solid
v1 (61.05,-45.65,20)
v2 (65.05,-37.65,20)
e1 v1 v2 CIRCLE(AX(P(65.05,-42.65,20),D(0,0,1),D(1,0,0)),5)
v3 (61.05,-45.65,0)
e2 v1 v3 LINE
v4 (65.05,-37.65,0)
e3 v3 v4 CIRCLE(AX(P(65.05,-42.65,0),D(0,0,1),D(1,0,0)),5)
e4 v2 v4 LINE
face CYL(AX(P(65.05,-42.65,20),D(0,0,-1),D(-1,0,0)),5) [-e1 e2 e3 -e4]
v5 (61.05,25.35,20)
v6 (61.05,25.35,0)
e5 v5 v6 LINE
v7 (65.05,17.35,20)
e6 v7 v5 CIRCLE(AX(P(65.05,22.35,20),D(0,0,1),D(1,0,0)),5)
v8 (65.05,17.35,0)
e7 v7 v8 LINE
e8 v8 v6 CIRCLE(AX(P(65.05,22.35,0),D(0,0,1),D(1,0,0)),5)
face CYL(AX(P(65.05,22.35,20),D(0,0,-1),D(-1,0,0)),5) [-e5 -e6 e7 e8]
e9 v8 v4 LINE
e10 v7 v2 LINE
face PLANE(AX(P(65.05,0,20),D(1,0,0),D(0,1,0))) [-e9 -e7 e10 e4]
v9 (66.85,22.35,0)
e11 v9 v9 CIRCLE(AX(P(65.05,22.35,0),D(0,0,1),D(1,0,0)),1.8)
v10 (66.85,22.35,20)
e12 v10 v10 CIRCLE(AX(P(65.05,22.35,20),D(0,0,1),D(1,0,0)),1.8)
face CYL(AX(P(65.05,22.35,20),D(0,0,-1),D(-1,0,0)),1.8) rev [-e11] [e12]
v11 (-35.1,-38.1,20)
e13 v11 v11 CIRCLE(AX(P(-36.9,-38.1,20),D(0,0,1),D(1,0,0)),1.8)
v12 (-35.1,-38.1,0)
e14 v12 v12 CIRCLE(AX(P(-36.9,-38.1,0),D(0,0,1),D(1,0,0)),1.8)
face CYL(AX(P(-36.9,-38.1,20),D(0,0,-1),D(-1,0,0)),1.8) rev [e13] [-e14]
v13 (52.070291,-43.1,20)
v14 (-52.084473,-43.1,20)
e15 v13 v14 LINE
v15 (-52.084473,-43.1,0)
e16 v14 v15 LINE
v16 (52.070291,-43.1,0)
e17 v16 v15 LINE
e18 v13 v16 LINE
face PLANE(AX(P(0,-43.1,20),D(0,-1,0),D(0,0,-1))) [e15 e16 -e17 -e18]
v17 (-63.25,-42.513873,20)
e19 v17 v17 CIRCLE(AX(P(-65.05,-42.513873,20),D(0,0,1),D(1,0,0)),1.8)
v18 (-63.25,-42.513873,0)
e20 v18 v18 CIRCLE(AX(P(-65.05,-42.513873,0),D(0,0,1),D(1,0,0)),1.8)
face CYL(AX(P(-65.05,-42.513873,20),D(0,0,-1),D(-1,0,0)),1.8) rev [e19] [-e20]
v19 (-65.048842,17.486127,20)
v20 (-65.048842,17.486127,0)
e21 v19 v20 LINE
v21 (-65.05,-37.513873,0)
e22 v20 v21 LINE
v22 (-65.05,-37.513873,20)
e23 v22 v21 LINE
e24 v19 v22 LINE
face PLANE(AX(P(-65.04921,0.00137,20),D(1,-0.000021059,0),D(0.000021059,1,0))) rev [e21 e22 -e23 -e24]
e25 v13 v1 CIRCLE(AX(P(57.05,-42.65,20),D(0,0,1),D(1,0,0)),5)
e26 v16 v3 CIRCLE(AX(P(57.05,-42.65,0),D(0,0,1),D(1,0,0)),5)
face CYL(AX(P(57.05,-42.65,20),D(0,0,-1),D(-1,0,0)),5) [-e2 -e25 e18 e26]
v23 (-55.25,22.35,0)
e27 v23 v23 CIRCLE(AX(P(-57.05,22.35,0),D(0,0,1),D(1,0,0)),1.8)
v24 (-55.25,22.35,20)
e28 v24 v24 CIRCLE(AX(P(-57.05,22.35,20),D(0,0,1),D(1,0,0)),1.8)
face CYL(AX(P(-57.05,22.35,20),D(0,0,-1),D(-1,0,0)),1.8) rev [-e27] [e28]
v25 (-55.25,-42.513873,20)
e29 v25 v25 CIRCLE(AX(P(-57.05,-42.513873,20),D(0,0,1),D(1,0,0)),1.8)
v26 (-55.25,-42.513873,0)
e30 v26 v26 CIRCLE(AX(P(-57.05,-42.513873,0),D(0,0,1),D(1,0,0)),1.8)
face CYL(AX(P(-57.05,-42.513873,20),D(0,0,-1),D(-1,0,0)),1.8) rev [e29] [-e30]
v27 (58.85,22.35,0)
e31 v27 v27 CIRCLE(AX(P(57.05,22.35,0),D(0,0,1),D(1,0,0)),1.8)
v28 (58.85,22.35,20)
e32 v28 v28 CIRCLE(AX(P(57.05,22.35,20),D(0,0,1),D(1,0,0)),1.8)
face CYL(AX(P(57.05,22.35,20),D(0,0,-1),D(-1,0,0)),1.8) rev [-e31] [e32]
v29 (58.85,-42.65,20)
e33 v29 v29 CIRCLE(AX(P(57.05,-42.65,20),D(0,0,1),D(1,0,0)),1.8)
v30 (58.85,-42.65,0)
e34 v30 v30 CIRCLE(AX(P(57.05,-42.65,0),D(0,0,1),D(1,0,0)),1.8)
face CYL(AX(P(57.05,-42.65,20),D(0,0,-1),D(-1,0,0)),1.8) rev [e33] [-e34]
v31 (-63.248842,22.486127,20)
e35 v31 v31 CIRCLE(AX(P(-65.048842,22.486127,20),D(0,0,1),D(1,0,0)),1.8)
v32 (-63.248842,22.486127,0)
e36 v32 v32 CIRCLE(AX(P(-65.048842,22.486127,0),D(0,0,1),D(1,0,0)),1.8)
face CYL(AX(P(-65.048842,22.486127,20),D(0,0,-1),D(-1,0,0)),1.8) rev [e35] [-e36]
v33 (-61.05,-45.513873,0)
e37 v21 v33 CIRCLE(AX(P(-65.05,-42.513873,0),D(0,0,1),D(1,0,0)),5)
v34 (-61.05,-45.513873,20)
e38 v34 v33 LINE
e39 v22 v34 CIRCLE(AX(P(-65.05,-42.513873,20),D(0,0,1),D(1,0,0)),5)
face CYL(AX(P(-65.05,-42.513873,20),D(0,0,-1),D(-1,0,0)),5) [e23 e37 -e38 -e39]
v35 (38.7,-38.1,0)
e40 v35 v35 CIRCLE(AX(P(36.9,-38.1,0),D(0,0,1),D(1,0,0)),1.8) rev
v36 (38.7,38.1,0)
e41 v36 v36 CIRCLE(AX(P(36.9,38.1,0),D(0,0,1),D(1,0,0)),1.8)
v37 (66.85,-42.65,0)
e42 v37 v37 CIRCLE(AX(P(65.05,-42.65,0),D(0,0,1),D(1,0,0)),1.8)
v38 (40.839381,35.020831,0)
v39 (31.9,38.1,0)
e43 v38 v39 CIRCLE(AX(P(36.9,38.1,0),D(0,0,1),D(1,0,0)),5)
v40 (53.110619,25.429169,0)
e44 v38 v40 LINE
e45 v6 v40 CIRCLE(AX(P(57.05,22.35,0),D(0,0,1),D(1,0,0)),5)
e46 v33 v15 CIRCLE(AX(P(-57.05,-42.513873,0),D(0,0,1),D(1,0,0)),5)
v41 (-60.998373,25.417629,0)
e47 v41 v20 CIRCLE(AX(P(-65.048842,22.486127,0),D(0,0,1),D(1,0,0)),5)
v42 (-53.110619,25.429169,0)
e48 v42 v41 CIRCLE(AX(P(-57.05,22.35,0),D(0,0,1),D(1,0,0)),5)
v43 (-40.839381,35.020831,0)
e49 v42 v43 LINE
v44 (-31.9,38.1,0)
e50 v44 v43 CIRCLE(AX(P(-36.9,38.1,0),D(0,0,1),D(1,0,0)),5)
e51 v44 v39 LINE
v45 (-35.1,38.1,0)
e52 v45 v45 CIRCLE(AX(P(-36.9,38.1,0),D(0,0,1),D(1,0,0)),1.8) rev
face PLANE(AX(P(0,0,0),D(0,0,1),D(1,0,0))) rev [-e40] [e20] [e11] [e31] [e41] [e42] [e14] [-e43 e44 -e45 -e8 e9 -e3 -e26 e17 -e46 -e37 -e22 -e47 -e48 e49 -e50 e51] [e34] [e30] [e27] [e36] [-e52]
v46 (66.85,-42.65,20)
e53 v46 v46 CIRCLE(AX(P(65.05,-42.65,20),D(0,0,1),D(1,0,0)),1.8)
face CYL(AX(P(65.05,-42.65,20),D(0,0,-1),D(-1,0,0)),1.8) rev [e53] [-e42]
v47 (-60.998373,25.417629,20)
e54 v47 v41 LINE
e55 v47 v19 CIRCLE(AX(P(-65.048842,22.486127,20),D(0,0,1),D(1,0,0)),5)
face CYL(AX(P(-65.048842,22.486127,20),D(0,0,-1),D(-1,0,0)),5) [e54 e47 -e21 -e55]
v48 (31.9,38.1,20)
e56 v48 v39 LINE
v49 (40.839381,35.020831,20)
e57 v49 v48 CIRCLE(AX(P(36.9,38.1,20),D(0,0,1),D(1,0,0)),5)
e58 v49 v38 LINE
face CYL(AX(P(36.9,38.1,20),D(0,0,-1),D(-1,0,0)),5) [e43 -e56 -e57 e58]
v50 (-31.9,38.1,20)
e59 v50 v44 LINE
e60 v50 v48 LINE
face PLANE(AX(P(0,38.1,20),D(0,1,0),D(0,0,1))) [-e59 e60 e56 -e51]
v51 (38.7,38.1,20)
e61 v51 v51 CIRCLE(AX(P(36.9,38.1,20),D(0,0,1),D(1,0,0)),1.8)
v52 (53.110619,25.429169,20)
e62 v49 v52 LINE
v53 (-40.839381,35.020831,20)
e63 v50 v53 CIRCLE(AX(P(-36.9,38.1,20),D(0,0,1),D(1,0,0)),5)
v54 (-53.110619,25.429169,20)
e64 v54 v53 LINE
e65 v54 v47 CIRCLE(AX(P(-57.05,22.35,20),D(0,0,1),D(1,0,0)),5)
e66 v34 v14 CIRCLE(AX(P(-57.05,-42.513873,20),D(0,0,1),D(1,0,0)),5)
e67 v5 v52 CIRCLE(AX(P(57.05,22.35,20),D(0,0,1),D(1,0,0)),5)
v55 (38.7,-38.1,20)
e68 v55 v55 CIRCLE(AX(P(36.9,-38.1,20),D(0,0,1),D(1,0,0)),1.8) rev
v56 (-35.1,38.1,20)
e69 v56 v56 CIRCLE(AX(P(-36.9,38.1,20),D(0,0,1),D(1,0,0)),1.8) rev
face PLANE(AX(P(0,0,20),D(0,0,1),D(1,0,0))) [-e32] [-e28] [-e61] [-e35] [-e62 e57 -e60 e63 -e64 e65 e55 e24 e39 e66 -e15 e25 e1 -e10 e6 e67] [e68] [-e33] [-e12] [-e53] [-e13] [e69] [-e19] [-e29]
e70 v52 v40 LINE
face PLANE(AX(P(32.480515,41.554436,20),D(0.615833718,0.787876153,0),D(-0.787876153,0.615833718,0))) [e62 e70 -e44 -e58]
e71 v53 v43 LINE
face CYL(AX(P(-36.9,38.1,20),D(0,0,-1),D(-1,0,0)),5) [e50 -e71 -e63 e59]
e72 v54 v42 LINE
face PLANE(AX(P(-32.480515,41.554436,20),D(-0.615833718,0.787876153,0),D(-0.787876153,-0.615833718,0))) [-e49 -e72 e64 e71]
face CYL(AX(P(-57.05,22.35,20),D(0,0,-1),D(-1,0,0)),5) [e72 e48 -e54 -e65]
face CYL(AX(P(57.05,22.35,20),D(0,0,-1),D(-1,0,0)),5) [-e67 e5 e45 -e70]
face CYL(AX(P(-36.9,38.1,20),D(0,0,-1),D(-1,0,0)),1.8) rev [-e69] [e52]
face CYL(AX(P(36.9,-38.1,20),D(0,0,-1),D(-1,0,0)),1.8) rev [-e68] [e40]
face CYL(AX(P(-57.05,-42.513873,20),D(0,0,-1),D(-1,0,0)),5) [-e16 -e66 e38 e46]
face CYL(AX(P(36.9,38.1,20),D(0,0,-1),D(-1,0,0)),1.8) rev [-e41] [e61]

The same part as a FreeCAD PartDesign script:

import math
import FreeCAD as App
import Part
import Sketcher

V = App.Vector
Q = App.Units.Quantity

doc = App.newDocument("Part")
params = doc.addObject("Spreadsheet::Sheet", "Params")
for row, (alias, value) in enumerate([
    ("sketch1_radius", "5 mm"),
    ("sketch1_diameter", "3.6 mm"),
    ("sketch1_height", "55 mm"),
    ("sketch1_length", "55 mm"),
    ("sketch1_width", "63.8 mm"),
    ("pad1_length", "20 mm"),
], start=1):
    params.set(f"A{row}", alias)
    params.set(f"B{row}", "=" + value)
    params.setAlias(f"B{row}", alias)

body = doc.addObject("PartDesign::Body", "Body")

# Sketch on XY plane
sketch1 = body.newObject("Sketcher::SketchObject", "Sketch")
sketch1.AttachmentSupport = (doc.getObject("XY_Plane"), [""])
sketch1.MapMode = "FlatFace"
sketch1.addGeometry([
    Part.ArcOfCircle(Part.Circle(V(-65, 22.5, 0), V(0, 0, 1), 5), math.radians(36), math.radians(270)),  # 0
    Part.LineSegment(V(-65, 17.5, 0), V(-65, -37.5, 0)),  # 1
    Part.ArcOfCircle(Part.Circle(V(-65, -42.5, 0), V(0, 0, 1), 5), math.radians(90), math.radians(323)),  # 2
    Part.ArcOfCircle(Part.Circle(V(-57, -42.5, 0), V(0, 0, 1), 5), math.radians(-143), math.radians(-7)),  # 3
    Part.LineSegment(V(-52.1, -43.1, 0), V(52.1, -43.1, 0)),  # 4
    Part.ArcOfCircle(Part.Circle(V(57, -42.6, 0), V(0, 0, 1), 5), math.radians(-175), math.radians(-37)),  # 5
    Part.ArcOfCircle(Part.Circle(V(65, -42.6, 0), V(0, 0, 1), 5), math.radians(-143), math.radians(90)),  # 6
    Part.LineSegment(V(65, -37.6, 0), V(65, 17.4, 0)),  # 7
    Part.ArcOfCircle(Part.Circle(V(65, 22.4, 0), V(0, 0, 1), 5), math.radians(-90), math.radians(143)),  # 8
    Part.ArcOfCircle(Part.Circle(V(57, 22.4, 0), V(0, 0, 1), 5), math.radians(37), math.radians(142)),  # 9
    Part.LineSegment(V(53.1, 25.4, 0), V(40.8, 35, 0)),  # 10
    Part.ArcOfCircle(Part.Circle(V(36.9, 38.1, 0), V(0, 0, 1), 5), math.radians(-38), math.radians(180)),  # 11
    Part.LineSegment(V(31.9, 38.1, 0), V(-31.9, 38.1, 0)),  # 12
    Part.ArcOfCircle(Part.Circle(V(-36.9, 38.1, 0), V(0, 0, 1), 5), math.radians(0), math.radians(218)),  # 13
    Part.LineSegment(V(-40.8, 35, 0), V(-53.1, 25.4, 0)),  # 14
    Part.ArcOfCircle(Part.Circle(V(-57, 22.3, 0), V(0, 0, 1), 5), math.radians(38), math.radians(142)),  # 15
    Part.Circle(V(-65, -42.5, 0), V(0, 0, 1), 1.8),  # 16
    Part.Circle(V(-57, -42.5, 0), V(0, 0, 1), 1.8),  # 17
    Part.Circle(V(-36.9, -38.1, 0), V(0, 0, 1), 1.8),  # 18
    Part.Circle(V(36.9, -38.1, 0), V(0, 0, 1), 1.8),  # 19
    Part.Circle(V(57, -42.6, 0), V(0, 0, 1), 1.8),  # 20
    Part.Circle(V(65, -42.6, 0), V(0, 0, 1), 1.8),  # 21
    Part.Circle(V(-65, 22.5, 0), V(0, 0, 1), 1.8),  # 22
    Part.Circle(V(-57, 22.4, 0), V(0, 0, 1), 1.8),  # 23
    Part.Circle(V(-36.9, 38.1, 0), V(0, 0, 1), 1.8),  # 24
    Part.Circle(V(57, 22.4, 0), V(0, 0, 1), 1.8),  # 25
    Part.Circle(V(65, 22.4, 0), V(0, 0, 1), 1.8),  # 26
    Part.Circle(V(36.9, 38.1, 0), V(0, 0, 1), 1.8),  # 27
], False)
sketch1.addConstraint([
    Sketcher.Constraint("Coincident", 0, 2, 1, 1),
    Sketcher.Constraint("Coincident", 1, 2, 2, 1),
    Sketcher.Constraint("Coincident", 2, 2, 3, 1),
    Sketcher.Constraint("Coincident", 3, 2, 4, 1),
    Sketcher.Constraint("Coincident", 4, 2, 5, 1),
    Sketcher.Constraint("Coincident", 5, 2, 6, 1),
    Sketcher.Constraint("Coincident", 6, 2, 7, 1),
    Sketcher.Constraint("Coincident", 7, 2, 8, 1),
    Sketcher.Constraint("Coincident", 8, 2, 9, 1),
    Sketcher.Constraint("Coincident", 9, 2, 10, 1),
    Sketcher.Constraint("Coincident", 10, 2, 11, 1),
    Sketcher.Constraint("Coincident", 11, 2, 12, 1),
    Sketcher.Constraint("Coincident", 12, 2, 13, 1),
    Sketcher.Constraint("Coincident", 13, 2, 14, 1),
    Sketcher.Constraint("Coincident", 14, 2, 15, 1),
    Sketcher.Constraint("Coincident", 15, 2, 0, 1),
    Sketcher.Constraint("Horizontal", 4),
    Sketcher.Constraint("Vertical", 7),
    Sketcher.Constraint("Horizontal", 12),
    Sketcher.Constraint("Coincident", 16, 3, 2, 3),
    Sketcher.Constraint("Coincident", 17, 3, 3, 3),
    Sketcher.Constraint("Coincident", 20, 3, 5, 3),
    Sketcher.Constraint("Coincident", 21, 3, 6, 3),
    Sketcher.Constraint("Coincident", 22, 3, 0, 3),
    Sketcher.Constraint("Coincident", 23, 3, 15, 3),
    Sketcher.Constraint("Coincident", 24, 3, 13, 3),
    Sketcher.Constraint("Coincident", 25, 3, 9, 3),
    Sketcher.Constraint("Coincident", 26, 3, 8, 3),
    Sketcher.Constraint("Coincident", 27, 3, 11, 3),
    Sketcher.Constraint("Equal", 0, 2),
    Sketcher.Constraint("Equal", 2, 3),
    Sketcher.Constraint("Equal", 3, 5),
    Sketcher.Constraint("Equal", 5, 6),
    Sketcher.Constraint("Equal", 6, 8),
    Sketcher.Constraint("Equal", 8, 9),
    Sketcher.Constraint("Equal", 9, 11),
    Sketcher.Constraint("Equal", 11, 13),
    Sketcher.Constraint("Equal", 13, 15),
    Sketcher.Constraint("Equal", 16, 17),
    Sketcher.Constraint("Equal", 17, 18),
    Sketcher.Constraint("Equal", 18, 19),
    Sketcher.Constraint("Equal", 19, 20),
    Sketcher.Constraint("Equal", 20, 21),
    Sketcher.Constraint("Equal", 21, 22),
    Sketcher.Constraint("Equal", 22, 23),
    Sketcher.Constraint("Equal", 23, 24),
    Sketcher.Constraint("Equal", 24, 25),
    Sketcher.Constraint("Equal", 25, 26),
    Sketcher.Constraint("Equal", 26, 27),
    Sketcher.Constraint("Symmetric", 11, 3, 18, 3, -1, 1),
    Sketcher.Constraint("Symmetric", 13, 3, 19, 3, -1, 1),
    Sketcher.Constraint("Symmetric", 11, 3, 13, 3, -2),
    Sketcher.Constraint("Symmetric", 9, 3, 15, 3, -2),
    Sketcher.Constraint("Horizontal", 2, 3, 3, 3),
    Sketcher.Constraint("Horizontal", 5, 3, 6, 3),
    Sketcher.Constraint("Horizontal", 8, 3, 9, 3),
    Sketcher.Constraint("Horizontal", 27, 3, 11, 2),
    Sketcher.Constraint("Horizontal", 10, 2, 13, 2),
    Sketcher.Constraint("Horizontal", 9, 2, 14, 2),
    Sketcher.Constraint("Vertical", 6, 3, 8, 3),
    Sketcher.Constraint("Vertical", 5, 3, 9, 3),
    Sketcher.Constraint("Vertical", 3, 3, 15, 3),
    Sketcher.Constraint("Vertical", 22, 3, 0, 2),
    Sketcher.Constraint("Vertical", 16, 3, 1, 2),
    Sketcher.Constraint("Vertical", 26, 3, 6, 2),
    Sketcher.Constraint("Radius", 0, Q("5 mm")),
    Sketcher.Constraint("Diameter", 16, Q("3.6 mm")),
    Sketcher.Constraint("DistanceY", 7, 1, 7, 2, Q("55 mm")),
    Sketcher.Constraint("Distance", 1, Q("55 mm")),
    Sketcher.Constraint("DistanceX", 12, 2, 12, 1, Q("63.8 mm")),
    Sketcher.Constraint("DistanceX", 2, 3, 3, 3, Q("8 mm")),
    Sketcher.Constraint("DistanceX", 5, 3, 6, 3, Q("8 mm")),
    Sketcher.Constraint("DistanceY", 4, 2, 19, 3, Q("5 mm")),
    Sketcher.Constraint("DistanceY", -1, 1, 11, 3, Q("38.1 mm")),
    Sketcher.Constraint("DistanceX", 3, 3, 5, 3, Q("114.1 mm")),
    Sketcher.Constraint("DistanceY", 5, 3, -1, 1, Q("42.65 mm")),
    Sketcher.Constraint("DistanceX", 4, 1, 4, 2, Q("104.154765 mm")),
    Sketcher.Constraint("DistanceX", 0, 3, -1, 1, Q("65.048842 mm")),
    Sketcher.Constraint("DistanceX", -1, 1, 9, 2, Q("53.110619 mm")),
    Sketcher.Constraint("DistanceX", -1, 1, 10, 2, Q("40.839381 mm")),
])
sketch1.setExpression("Constraints[65]", "Params.sketch1_radius")
sketch1.setExpression("Constraints[66]", "Params.sketch1_diameter")
sketch1.setExpression("Constraints[67]", "Params.sketch1_height")
sketch1.setExpression("Constraints[68]", "Params.sketch1_length")
sketch1.setExpression("Constraints[69]", "Params.sketch1_width")
pad1 = body.newObject("PartDesign::Pad", "Pad")
pad1.Profile = sketch1
pad1.setExpression("Length", "Params.pad1_length")

doc.recompute()
